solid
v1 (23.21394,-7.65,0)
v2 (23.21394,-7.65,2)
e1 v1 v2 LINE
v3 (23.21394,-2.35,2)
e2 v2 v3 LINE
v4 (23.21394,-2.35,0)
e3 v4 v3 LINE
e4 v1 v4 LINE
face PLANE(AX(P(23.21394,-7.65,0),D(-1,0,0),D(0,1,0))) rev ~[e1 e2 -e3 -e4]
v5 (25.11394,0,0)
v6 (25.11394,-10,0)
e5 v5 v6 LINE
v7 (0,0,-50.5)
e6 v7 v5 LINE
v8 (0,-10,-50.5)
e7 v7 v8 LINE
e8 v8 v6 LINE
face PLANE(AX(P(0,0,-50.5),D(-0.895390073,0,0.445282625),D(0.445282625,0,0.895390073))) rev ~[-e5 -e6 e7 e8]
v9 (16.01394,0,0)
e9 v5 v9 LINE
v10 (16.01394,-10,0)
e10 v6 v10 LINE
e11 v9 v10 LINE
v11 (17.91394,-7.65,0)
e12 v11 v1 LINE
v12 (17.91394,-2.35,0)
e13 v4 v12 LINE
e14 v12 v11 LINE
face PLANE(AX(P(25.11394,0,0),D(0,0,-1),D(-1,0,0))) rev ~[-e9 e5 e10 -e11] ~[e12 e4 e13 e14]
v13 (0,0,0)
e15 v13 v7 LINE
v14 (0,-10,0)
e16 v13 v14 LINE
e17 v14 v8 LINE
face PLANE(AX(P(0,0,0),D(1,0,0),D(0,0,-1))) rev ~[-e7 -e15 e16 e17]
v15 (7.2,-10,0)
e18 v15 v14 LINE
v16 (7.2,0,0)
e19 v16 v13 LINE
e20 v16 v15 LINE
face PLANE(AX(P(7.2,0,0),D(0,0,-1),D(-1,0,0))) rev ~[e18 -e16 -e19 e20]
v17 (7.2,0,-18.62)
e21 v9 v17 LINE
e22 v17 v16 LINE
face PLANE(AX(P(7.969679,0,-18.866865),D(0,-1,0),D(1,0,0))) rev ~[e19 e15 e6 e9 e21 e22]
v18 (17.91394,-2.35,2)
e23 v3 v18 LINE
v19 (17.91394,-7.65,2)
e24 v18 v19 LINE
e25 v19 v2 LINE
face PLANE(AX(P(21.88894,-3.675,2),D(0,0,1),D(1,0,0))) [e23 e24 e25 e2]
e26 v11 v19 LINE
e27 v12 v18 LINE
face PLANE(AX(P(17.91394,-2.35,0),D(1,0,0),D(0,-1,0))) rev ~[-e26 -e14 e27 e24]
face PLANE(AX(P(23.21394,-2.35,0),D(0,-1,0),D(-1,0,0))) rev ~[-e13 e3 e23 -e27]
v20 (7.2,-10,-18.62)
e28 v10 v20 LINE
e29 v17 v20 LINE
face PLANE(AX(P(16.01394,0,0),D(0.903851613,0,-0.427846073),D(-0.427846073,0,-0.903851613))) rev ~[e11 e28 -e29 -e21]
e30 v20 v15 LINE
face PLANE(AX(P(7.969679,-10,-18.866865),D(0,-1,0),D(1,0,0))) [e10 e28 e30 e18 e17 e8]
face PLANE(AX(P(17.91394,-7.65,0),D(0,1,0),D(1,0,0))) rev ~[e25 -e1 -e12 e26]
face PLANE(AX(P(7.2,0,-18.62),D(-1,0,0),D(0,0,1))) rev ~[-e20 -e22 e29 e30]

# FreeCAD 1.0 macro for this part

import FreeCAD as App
import Part
import Sketcher

doc = App.newDocument("Part")
body = doc.addObject("PartDesign::Body", "Body")

# Sketch on XZ plane
sketch1 = body.newObject("Sketcher::SketchObject", "Sketch")
sketch1.AttachmentSupport = (doc.getObject("XZ_Plane"), [""])
sketch1.MapMode = "FlatFace"
sketch1.addGeometry([
    Part.LineSegment(App.Vector(7, 0, 0), App.Vector(0, 0, 0)),  # 0
    Part.LineSegment(App.Vector(0, 0, 0), App.Vector(0, -50, 0)),  # 1
    Part.LineSegment(App.Vector(0, -50, 0), App.Vector(25, 0, 0)),  # 2
    Part.LineSegment(App.Vector(25, 0, 0), App.Vector(16, 0, 0)),  # 3
    Part.LineSegment(App.Vector(16, 0, 0), App.Vector(7, -19, 0)),  # 4
    Part.LineSegment(App.Vector(7, -19, 0), App.Vector(7, 0, 0)),  # 5
], False)
sketch1.addConstraint([
    Sketcher.Constraint("Coincident", 0, 2, 1, 1),
    Sketcher.Constraint("Coincident", 1, 2, 2, 1),
    Sketcher.Constraint("Coincident", 2, 2, 3, 1),
    Sketcher.Constraint("Coincident", 3, 2, 4, 1),
    Sketcher.Constraint("Coincident", 4, 2, 5, 1),
    Sketcher.Constraint("Coincident", 5, 2, 0, 1),
    Sketcher.Constraint("Horizontal", 0),
    Sketcher.Constraint("Vertical", 1),
    Sketcher.Constraint("Horizontal", 3),
    Sketcher.Constraint("Vertical", 5),
    Sketcher.Constraint("Coincident", 0, 2, -1, 1),
    Sketcher.Constraint("PointOnObject", 2, 2, -1),
    Sketcher.Constraint("DistanceX", 0, 2, 0, 1, 7.2),
    Sketcher.Constraint("DistanceX", 3, 2, 3, 1, 9.1),
    Sketcher.Constraint("DistanceY", 1, 2, 1, 1, 50.5),
    Sketcher.Constraint("Distance", 2, 56.4),
    Sketcher.Constraint("DistanceY", 5, 1, 5, 2, 18.62),
])
pad1 = body.newObject("PartDesign::Pad", "Pad")
pad1.Profile = sketch1
pad1.Length = 10

# Sketch on XY plane
sketch2 = body.newObject("Sketcher::SketchObject", "Sketch001")
sketch2.AttachmentSupport = (doc.getObject("XY_Plane"), [""])
sketch2.MapMode = "FlatFace"
sketch2.addGeometry([
    Part.LineSegment(App.Vector(23, -2, 0), App.Vector(18, -2, 0)),
    Part.LineSegment(App.Vector(18, -2, 0), App.Vector(18, -8, 0)),
    Part.LineSegment(App.Vector(18, -8, 0), App.Vector(23, -8, 0)),
    Part.LineSegment(App.Vector(23, -8, 0), App.Vector(23, -2, 0)),
], False)
sketch2.addConstraint([
    Sketcher.Constraint("Coincident", 0, 2, 1, 1),
    Sketcher.Constraint("Coincident", 1, 2, 2, 1),
    Sketcher.Constraint("Coincident", 2, 2, 3, 1),
    Sketcher.Constraint("Coincident", 3, 2, 0, 1),
    Sketcher.Constraint("Horizontal", 0),
    Sketcher.Constraint("Vertical", 1),
    Sketcher.Constraint("Horizontal", 2),
    Sketcher.Constraint("Vertical", 3),
    Sketcher.Constraint("Equal", 2, 1),
    Sketcher.Constraint("DistanceX", 0, 2, 0, 1, 5.3),
    Sketcher.Constraint("DistanceY", 0, 2, -1, 1, 2.35),
    Sketcher.Constraint("DistanceX", -1, 1, 0, 2, 17.91394),
])
pad2 = body.newObject("PartDesign::Pad", "Pad001")
pad2.Profile = sketch2
pad2.Length = 2

doc.recompute()
